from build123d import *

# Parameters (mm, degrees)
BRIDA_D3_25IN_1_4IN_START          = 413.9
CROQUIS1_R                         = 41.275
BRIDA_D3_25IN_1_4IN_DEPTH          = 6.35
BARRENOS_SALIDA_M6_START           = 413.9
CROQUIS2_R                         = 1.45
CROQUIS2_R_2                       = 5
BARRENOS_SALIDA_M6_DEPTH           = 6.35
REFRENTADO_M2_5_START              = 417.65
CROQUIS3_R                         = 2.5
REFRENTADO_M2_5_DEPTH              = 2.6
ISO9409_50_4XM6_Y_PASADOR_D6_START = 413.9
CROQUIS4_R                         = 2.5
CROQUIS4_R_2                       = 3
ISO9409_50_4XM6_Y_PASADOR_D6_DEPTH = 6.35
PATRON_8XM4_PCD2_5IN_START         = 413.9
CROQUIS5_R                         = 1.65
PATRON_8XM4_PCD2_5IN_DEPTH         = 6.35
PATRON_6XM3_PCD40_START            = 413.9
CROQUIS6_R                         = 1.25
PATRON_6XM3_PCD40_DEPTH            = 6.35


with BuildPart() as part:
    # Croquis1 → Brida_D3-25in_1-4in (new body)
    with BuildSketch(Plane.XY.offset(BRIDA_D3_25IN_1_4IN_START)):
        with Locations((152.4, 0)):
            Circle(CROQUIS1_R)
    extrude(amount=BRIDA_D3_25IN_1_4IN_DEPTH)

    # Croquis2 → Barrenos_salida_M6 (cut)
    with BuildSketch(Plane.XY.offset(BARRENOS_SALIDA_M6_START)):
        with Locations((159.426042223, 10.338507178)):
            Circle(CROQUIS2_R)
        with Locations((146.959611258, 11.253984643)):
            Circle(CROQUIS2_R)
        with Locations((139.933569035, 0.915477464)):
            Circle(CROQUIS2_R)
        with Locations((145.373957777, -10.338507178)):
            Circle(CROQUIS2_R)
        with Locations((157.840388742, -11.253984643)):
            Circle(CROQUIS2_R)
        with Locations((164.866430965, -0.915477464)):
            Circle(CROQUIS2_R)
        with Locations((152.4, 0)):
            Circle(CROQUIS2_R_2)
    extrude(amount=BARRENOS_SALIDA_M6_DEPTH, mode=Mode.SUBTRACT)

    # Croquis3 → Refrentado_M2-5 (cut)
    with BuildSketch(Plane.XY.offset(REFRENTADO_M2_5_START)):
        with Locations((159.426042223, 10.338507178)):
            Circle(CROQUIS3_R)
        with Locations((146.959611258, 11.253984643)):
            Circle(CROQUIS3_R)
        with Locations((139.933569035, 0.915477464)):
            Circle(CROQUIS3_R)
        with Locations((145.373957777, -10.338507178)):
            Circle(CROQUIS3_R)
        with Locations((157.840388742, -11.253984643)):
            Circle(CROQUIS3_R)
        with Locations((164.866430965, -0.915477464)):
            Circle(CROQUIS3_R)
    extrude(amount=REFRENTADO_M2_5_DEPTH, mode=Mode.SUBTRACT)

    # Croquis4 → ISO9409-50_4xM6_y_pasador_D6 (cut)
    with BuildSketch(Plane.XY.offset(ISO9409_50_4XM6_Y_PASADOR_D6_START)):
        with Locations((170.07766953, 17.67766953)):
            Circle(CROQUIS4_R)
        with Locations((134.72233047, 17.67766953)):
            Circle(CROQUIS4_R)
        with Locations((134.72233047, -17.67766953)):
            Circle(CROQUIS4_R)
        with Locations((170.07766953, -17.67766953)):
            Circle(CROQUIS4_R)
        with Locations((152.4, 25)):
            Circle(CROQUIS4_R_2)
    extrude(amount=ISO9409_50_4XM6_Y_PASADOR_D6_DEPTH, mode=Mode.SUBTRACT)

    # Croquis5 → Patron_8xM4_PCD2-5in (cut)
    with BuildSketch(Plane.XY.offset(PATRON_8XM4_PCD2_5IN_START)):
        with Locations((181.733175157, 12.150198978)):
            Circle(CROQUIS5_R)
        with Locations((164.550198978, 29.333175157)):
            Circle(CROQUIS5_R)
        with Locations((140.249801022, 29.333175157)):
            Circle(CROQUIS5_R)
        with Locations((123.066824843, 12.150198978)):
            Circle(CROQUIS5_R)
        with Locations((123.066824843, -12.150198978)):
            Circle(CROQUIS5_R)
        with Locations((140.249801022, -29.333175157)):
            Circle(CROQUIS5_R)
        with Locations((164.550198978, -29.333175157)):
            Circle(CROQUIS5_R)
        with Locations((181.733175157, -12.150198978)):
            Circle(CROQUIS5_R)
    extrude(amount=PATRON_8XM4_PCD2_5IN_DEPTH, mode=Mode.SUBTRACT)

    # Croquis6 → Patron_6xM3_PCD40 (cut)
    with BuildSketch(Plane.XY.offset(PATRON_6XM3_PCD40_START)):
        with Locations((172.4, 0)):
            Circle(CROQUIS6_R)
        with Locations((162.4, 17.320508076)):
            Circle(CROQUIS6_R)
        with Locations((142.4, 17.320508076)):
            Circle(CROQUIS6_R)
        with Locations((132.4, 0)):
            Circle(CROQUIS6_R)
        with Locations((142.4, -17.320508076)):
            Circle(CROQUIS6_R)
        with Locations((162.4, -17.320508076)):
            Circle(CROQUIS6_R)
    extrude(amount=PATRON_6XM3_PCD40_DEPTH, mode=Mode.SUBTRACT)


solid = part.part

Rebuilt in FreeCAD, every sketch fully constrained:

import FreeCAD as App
import Part
import Sketcher
from FreeCAD import Vector

doc = App.newDocument("Part")
body = doc.addObject("PartDesign::Body", "Body")

# Sketch on XY plane
sketch1 = body.newObject("Sketcher::SketchObject", "Sketch")
sketch1.AttachmentSupport = (doc.getObject("XY_Plane"), [""])
sketch1.MapMode = "FlatFace"
sketch1.AttachmentOffset = App.Placement(Vector(0, 0, 413.9), App.Rotation())
sketch1.addGeometry(Part.Circle(Vector(152, 0, 0), Vector(0, 0, 1), 41), False)
sketch1.addConstraint(Sketcher.Constraint("PointOnObject", 0, 3, -1))
sketch1.addConstraint(Sketcher.Constraint("Diameter", 0, 82.55))
sketch1.addConstraint(Sketcher.Constraint("DistanceX", -1, 1, 0, 3, 152.4))
pad1 = body.newObject("PartDesign::Pad", "Pad")
pad1.Profile = sketch1
pad1.Length = 6.35

# Sketch on XY plane
sketch2 = body.newObject("Sketcher::SketchObject", "Sketch001")
sketch2.AttachmentSupport = (doc.getObject("XY_Plane"), [""])
sketch2.MapMode = "FlatFace"
sketch2.AttachmentOffset = App.Placement(Vector(0, 0, 413.9), App.Rotation())
sketch2.addGeometry(Part.Circle(Vector(159.4, 10.3, 0), Vector(0, 0, 1), 1.4), False)
sketch2.addGeometry(Part.Circle(Vector(147, 11.3, 0), Vector(0, 0, 1), 1.4), False)
sketch2.addGeometry(Part.Circle(Vector(139.9, 0.9, 0), Vector(0, 0, 1), 1.4), False)
sketch2.addGeometry(Part.Circle(Vector(145.4, -10.3, 0), Vector(0, 0, 1), 1.4), False)
sketch2.addGeometry(Part.Circle(Vector(157.8, -11.3, 0), Vector(0, 0, 1), 1.4), False)
sketch2.addGeometry(Part.Circle(Vector(164.9, -0.9, 0), Vector(0, 0, 1), 1.4), False)
sketch2.addGeometry(Part.Circle(Vector(152.4, 0, 0), Vector(0, 0, 1), 5), False)
sketch2.addConstraint(Sketcher.Constraint("Equal", 0, 1))
sketch2.addConstraint(Sketcher.Constraint("Equal", 1, 2))
sketch2.addConstraint(Sketcher.Constraint("Equal", 2, 3))
sketch2.addConstraint(Sketcher.Constraint("Equal", 3, 4))
sketch2.addConstraint(Sketcher.Constraint("Equal", 4, 5))
sketch2.addConstraint(Sketcher.Constraint("PointOnObject", 6, 3, -1))
sketch2.addConstraint(Sketcher.Constraint("Diameter", 6, 10.0))
sketch2.addConstraint(Sketcher.Constraint("Diameter", 0, 2.9))
sketch2.addConstraint(Sketcher.Constraint("DistanceX", -1, 1, 6, 3, 152.4))
sketch2.addConstraint(Sketcher.Constraint("DistanceX", -1, 1, 1, 3, 146.959611))
sketch2.addConstraint(Sketcher.Constraint("DistanceX", -1, 1, 2, 3, 139.933569))
sketch2.addConstraint(Sketcher.Constraint("DistanceX", -1, 1, 4, 3, 157.840389))
sketch2.addConstraint(Sketcher.Constraint("DistanceX", -1, 1, 5, 3, 164.866431))
sketch2.addConstraint(Sketcher.Constraint("DistanceX", 1, 3, 0, 3, 12.466431))
sketch2.addConstraint(Sketcher.Constraint("DistanceY", 2, 3, 0, 3, 9.42303))
sketch2.addConstraint(Sketcher.Constraint("DistanceX", 2, 3, 3, 3, 5.440389))
sketch2.addConstraint(Sketcher.Constraint("DistanceY", 3, 3, 1, 3, 21.592492))
sketch2.addConstraint(Sketcher.Constraint("DistanceY", 4, 3, 0, 3, 21.592492))
sketch2.addConstraint(Sketcher.Constraint("DistanceY", 4, 3, 1, 3, 22.507969))
sketch2.addConstraint(Sketcher.Constraint("DistanceY", 3, 3, 5, 3, 9.42303))
sketch2.addConstraint(Sketcher.Constraint("DistanceY", -1, 1, 0, 3, 10.338507))
pocket1 = body.newObject("PartDesign::Pocket", "Pocket")
pocket1.Profile = sketch2
pocket1.Length = 6.35
pocket1.Reversed = True

# Sketch on XY plane
sketch3 = body.newObject("Sketcher::SketchObject", "Sketch002")
sketch3.AttachmentSupport = (doc.getObject("XY_Plane"), [""])
sketch3.MapMode = "FlatFace"
sketch3.AttachmentOffset = App.Placement(Vector(0, 0, 417.65), App.Rotation())
sketch3.addGeometry(Part.Circle(Vector(159.4, 10.3, 0), Vector(0, 0, 1), 2.5), False)
sketch3.addGeometry(Part.Circle(Vector(147, 11.3, 0), Vector(0, 0, 1), 2.5), False)
sketch3.addGeometry(Part.Circle(Vector(139.9, 0.9, 0), Vector(0, 0, 1), 2.5), False)
sketch3.addGeometry(Part.Circle(Vector(145.4, -10.3, 0), Vector(0, 0, 1), 2.5), False)
sketch3.addGeometry(Part.Circle(Vector(157.8, -11.3, 0), Vector(0, 0, 1), 2.5), False)
sketch3.addGeometry(Part.Circle(Vector(164.9, -0.9, 0), Vector(0, 0, 1), 2.5), False)
sketch3.addConstraint(Sketcher.Constraint("Equal", 0, 1))
sketch3.addConstraint(Sketcher.Constraint("Equal", 1, 2))
sketch3.addConstraint(Sketcher.Constraint("Equal", 2, 3))
sketch3.addConstraint(Sketcher.Constraint("Equal", 3, 4))
sketch3.addConstraint(Sketcher.Constraint("Equal", 4, 5))
sketch3.addConstraint(Sketcher.Constraint("Diameter", 0, 5.0))
sketch3.addConstraint(Sketcher.Constraint("DistanceX", -1, 1, 1, 3, 146.959611))
sketch3.addConstraint(Sketcher.Constraint("DistanceX", -1, 1, 2, 3, 139.933569))
sketch3.addConstraint(Sketcher.Constraint("DistanceX", -1, 1, 4, 3, 157.840389))
sketch3.addConstraint(Sketcher.Constraint("DistanceX", -1, 1, 5, 3, 164.866431))
sketch3.addConstraint(Sketcher.Constraint("DistanceX", 1, 3, 0, 3, 12.466431))
sketch3.addConstraint(Sketcher.Constraint("DistanceY", 2, 3, 0, 3, 9.42303))
sketch3.addConstraint(Sketcher.Constraint("DistanceX", 2, 3, 3, 3, 5.440389))
sketch3.addConstraint(Sketcher.Constraint("DistanceY", 3, 3, 1, 3, 21.592492))
sketch3.addConstraint(Sketcher.Constraint("DistanceY", 4, 3, 0, 3, 21.592492))
sketch3.addConstraint(Sketcher.Constraint("DistanceY", 4, 3, 1, 3, 22.507969))
sketch3.addConstraint(Sketcher.Constraint("DistanceY", 3, 3, 5, 3, 9.42303))
sketch3.addConstraint(Sketcher.Constraint("DistanceY", -1, 1, 0, 3, 10.338507))
pocket2 = body.newObject("PartDesign::Pocket", "Pocket001")
pocket2.Profile = sketch3
pocket2.Length = 2.6
pocket2.Reversed = True

# Sketch on XY plane
sketch4 = body.newObject("Sketcher::SketchObject", "Sketch003")
sketch4.AttachmentSupport = (doc.getObject("XY_Plane"), [""])
sketch4.MapMode = "FlatFace"
sketch4.AttachmentOffset = App.Placement(Vector(0, 0, 413.9), App.Rotation())
sketch4.addGeometry(Part.Circle(Vector(170.1, 17.7, 0), Vector(0, 0, 1), 2.5), False)
sketch4.addGeometry(Part.Circle(Vector(134.7, 17.7, 0), Vector(0, 0, 1), 2.5), False)
sketch4.addGeometry(Part.Circle(Vector(134.7, -17.7, 0), Vector(0, 0, 1), 2.5), False)
sketch4.addGeometry(Part.Circle(Vector(170.1, -17.7, 0), Vector(0, 0, 1), 2.5), False)
sketch4.addGeometry(Part.Circle(Vector(152.4, 25, 0), Vector(0, 0, 1), 3), False)
sketch4.addConstraint(Sketcher.Constraint("Equal", 0, 1))
sketch4.addConstraint(Sketcher.Constraint("Equal", 1, 2))
sketch4.addConstraint(Sketcher.Constraint("Equal", 2, 3))
sketch4.addConstraint(Sketcher.Constraint("Symmetric", 1, 3, 2, 3, -1))
sketch4.addConstraint(Sketcher.Constraint("Symmetric", 0, 3, 3, 3, -1))
sketch4.addConstraint(Sketcher.Constraint("Horizontal", 0, 3, 1, 3))
sketch4.addConstraint(Sketcher.Constraint("Diameter", 0, 5.0))
sketch4.addConstraint(Sketcher.Constraint("Diameter", 4, 6.0))
sketch4.addConstraint(Sketcher.Constraint("DistanceY", -1, 1, 4, 3, 25.0))
sketch4.addConstraint(Sketcher.Constraint("DistanceX", -1, 1, 4, 3, 152.4))
sketch4.addConstraint(Sketcher.Constraint("DistanceX", -1, 1, 0, 3, 170.07767))
sketch4.addConstraint(Sketcher.Constraint("DistanceY", -1, 1, 0, 3, 17.67767))
sketch4.addConstraint(Sketcher.Constraint("DistanceX", -1, 1, 1, 3, 134.72233))
pocket3 = body.newObject("PartDesign::Pocket", "Pocket002")
pocket3.Profile = sketch4
pocket3.Length = 6.35
pocket3.Reversed = True

# Sketch on XY plane
sketch5 = body.newObject("Sketcher::SketchObject", "Sketch004")
sketch5.AttachmentSupport = (doc.getObject("XY_Plane"), [""])
sketch5.MapMode = "FlatFace"
sketch5.AttachmentOffset = App.Placement(Vector(0, 0, 413.9), App.Rotation())
sketch5.addGeometry(Part.Circle(Vector(181.7, 12.2, 0), Vector(0, 0, 1), 1.6), False)
sketch5.addGeometry(Part.Circle(Vector(164.6, 29.3, 0), Vector(0, 0, 1), 1.6), False)
sketch5.addGeometry(Part.Circle(Vector(140.2, 29.3, 0), Vector(0, 0, 1), 1.6), False)
sketch5.addGeometry(Part.Circle(Vector(123.1, 12.2, 0), Vector(0, 0, 1), 1.6), False)
sketch5.addGeometry(Part.Circle(Vector(123.1, -12.2, 0), Vector(0, 0, 1), 1.6), False)
sketch5.addGeometry(Part.Circle(Vector(140.2, -29.3, 0), Vector(0, 0, 1), 1.6), False)
sketch5.addGeometry(Part.Circle(Vector(164.6, -29.3, 0), Vector(0, 0, 1), 1.6), False)
sketch5.addGeometry(Part.Circle(Vector(181.7, -12.2, 0), Vector(0, 0, 1), 1.6), False)
sketch5.addConstraint(Sketcher.Constraint("Equal", 0, 1))
sketch5.addConstraint(Sketcher.Constraint("Equal", 1, 2))
sketch5.addConstraint(Sketcher.Constraint("Equal", 2, 3))
sketch5.addConstraint(Sketcher.Constraint("Equal", 3, 4))
sketch5.addConstraint(Sketcher.Constraint("Equal", 4, 5))
sketch5.addConstraint(Sketcher.Constraint("Equal", 5, 6))
sketch5.addConstraint(Sketcher.Constraint("Equal", 6, 7))
sketch5.addConstraint(Sketcher.Constraint("Symmetric", 3, 3, 4, 3, -1))
sketch5.addConstraint(Sketcher.Constraint("Symmetric", 2, 3, 5, 3, -1))
sketch5.addConstraint(Sketcher.Constraint("Symmetric", 1, 3, 6, 3, -1))
sketch5.addConstraint(Sketcher.Constraint("Symmetric", 0, 3, 7, 3, -1))
sketch5.addConstraint(Sketcher.Constraint("Horizontal", 1, 3, 2, 3))
sketch5.addConstraint(Sketcher.Constraint("Horizontal", 0, 3, 3, 3))
sketch5.addConstraint(Sketcher.Constraint("Diameter", 0, 3.3))
sketch5.addConstraint(Sketcher.Constraint("DistanceY", -1, 1, 0, 3, 12.150199))
sketch5.addConstraint(Sketcher.Constraint("DistanceX", -1, 1, 1, 3, 164.550199))
sketch5.addConstraint(Sketcher.Constraint("DistanceX", -1, 1, 2, 3, 140.249801))
sketch5.addConstraint(Sketcher.Constraint("DistanceX", 3, 3, 0, 3, 58.66635))
sketch5.addConstraint(Sketcher.Constraint("DistanceY", 5, 3, 2, 3, 58.66635))
sketch5.addConstraint(Sketcher.Constraint("DistanceX", -1, 1, 0, 3, 181.733175))
pocket4 = body.newObject("PartDesign::Pocket", "Pocket003")
pocket4.Profile = sketch5
pocket4.Length = 6.35
pocket4.Reversed = True

# Sketch on XY plane
sketch6 = body.newObject("Sketcher::SketchObject", "Sketch005")
sketch6.AttachmentSupport = (doc.getObject("XY_Plane"), [""])
sketch6.MapMode = "FlatFace"
sketch6.AttachmentOffset = App.Placement(Vector(0, 0, 413.9), App.Rotation())
sketch6.addGeometry(Part.Circle(Vector(172.4, 0, 0), Vector(0, 0, 1), 1.2), False)
sketch6.addGeometry(Part.Circle(Vector(162.4, 17.3, 0), Vector(0, 0, 1), 1.2), False)
sketch6.addGeometry(Part.Circle(Vector(142.4, 17.3, 0), Vector(0, 0, 1), 1.2), False)
sketch6.addGeometry(Part.Circle(Vector(132.4, 0, 0), Vector(0, 0, 1), 1.2), False)
sketch6.addGeometry(Part.Circle(Vector(142.4, -17.3, 0), Vector(0, 0, 1), 1.2), False)
sketch6.addGeometry(Part.Circle(Vector(162.4, -17.3, 0), Vector(0, 0, 1), 1.2), False)
sketch6.addConstraint(Sketcher.Constraint("Equal", 0, 1))
sketch6.addConstraint(Sketcher.Constraint("Equal", 1, 2))
sketch6.addConstraint(Sketcher.Constraint("Equal", 2, 3))
sketch6.addConstraint(Sketcher.Constraint("Equal", 3, 4))
sketch6.addConstraint(Sketcher.Constraint("Equal", 4, 5))
sketch6.addConstraint(Sketcher.Constraint("Symmetric", 2, 3, 4, 3, -1))
sketch6.addConstraint(Sketcher.Constraint("Symmetric", 1, 3, 5, 3, -1))
sketch6.addConstraint(Sketcher.Constraint("PointOnObject", 0, 3, -1))
sketch6.addConstraint(Sketcher.Constraint("PointOnObject", 3, 3, -1))
sketch6.addConstraint(Sketcher.Constraint("Horizontal", 1, 3, 2, 3))
sketch6.addConstraint(Sketcher.Constraint("Diameter", 0, 2.5))
sketch6.addConstraint(Sketcher.Constraint("DistanceX", 1, 3, 0, 3, 10.0))
sketch6.addConstraint(Sketcher.Constraint("DistanceX", 2, 3, 1, 3, 20.0))
sketch6.addConstraint(Sketcher.Constraint("DistanceX", 3, 3, 2, 3, 10.0))
sketch6.addConstraint(Sketcher.Constraint("DistanceX", -1, 1, 0, 3, 172.4))
sketch6.addConstraint(Sketcher.Constraint("DistanceY", -1, 1, 1, 3, 17.320508))
pocket5 = body.newObject("PartDesign::Pocket", "Pocket004")
pocket5.Profile = sketch6
pocket5.Length = 6.35
pocket5.Reversed = True

doc.recompute()
